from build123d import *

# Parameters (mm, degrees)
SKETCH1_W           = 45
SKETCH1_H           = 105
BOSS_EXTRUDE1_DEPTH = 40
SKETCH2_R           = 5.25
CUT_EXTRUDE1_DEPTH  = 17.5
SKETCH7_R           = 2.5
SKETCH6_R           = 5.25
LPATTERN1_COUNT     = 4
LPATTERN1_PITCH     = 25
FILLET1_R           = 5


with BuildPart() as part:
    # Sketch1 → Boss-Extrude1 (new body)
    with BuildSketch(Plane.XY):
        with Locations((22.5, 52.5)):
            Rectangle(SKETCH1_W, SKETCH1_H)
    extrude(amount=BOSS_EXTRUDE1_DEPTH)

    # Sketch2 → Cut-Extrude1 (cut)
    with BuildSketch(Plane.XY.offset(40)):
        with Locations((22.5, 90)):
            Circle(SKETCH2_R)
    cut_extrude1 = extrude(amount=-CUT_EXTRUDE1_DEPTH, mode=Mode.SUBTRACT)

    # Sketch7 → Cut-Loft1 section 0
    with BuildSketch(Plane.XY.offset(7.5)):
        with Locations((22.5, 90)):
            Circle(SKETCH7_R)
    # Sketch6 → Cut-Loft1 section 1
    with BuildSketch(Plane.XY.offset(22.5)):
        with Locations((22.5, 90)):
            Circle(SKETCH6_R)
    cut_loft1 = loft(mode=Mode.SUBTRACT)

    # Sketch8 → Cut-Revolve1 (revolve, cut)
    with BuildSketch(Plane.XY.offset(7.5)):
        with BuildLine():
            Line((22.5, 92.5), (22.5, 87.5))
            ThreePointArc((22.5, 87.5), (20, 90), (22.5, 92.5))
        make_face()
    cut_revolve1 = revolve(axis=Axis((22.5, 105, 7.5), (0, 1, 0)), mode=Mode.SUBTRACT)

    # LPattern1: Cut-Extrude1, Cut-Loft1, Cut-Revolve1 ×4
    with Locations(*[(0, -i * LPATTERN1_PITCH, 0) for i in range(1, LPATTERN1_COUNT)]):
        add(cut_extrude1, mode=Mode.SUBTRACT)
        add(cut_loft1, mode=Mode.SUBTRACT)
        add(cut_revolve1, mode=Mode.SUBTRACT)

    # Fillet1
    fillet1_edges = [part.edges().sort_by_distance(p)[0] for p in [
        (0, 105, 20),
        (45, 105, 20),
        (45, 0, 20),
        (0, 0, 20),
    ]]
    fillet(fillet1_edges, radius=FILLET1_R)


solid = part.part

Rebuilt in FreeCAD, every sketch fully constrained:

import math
import FreeCAD as App
import Part
import Sketcher

V = App.Vector
Q = App.Units.Quantity


def edges_at(feature, points):
    """Names of the edges that pass closest to the given points."""
    edges = feature.Shape.Edges
    near = lambda p: min(range(len(edges)), key=lambda i: edges[i].distToShape(Part.Vertex(*p))[0])
    return sorted({f"Edge{near(p) + 1}" for p in points})

doc = App.newDocument("Part")
body = doc.addObject("PartDesign::Body", "Body")

# Sketch on XY plane
sketch1 = body.newObject("Sketcher::SketchObject", "Sketch")
sketch1.AttachmentSupport = (doc.getObject("XY_Plane"), [""])
sketch1.MapMode = "FlatFace"
sketch1.addGeometry([
    Part.LineSegment(V(0, 105, 0), V(0, 0, 0)),
    Part.LineSegment(V(0, 0, 0), V(45, 0, 0)),
    Part.LineSegment(V(45, 0, 0), V(45, 105, 0)),
    Part.LineSegment(V(45, 105, 0), V(0, 105, 0)),
], False)
sketch1.addConstraint([
    Sketcher.Constraint("Coincident", 0, 2, 1, 1),
    Sketcher.Constraint("Coincident", 1, 2, 2, 1),
    Sketcher.Constraint("Coincident", 2, 2, 3, 1),
    Sketcher.Constraint("Coincident", 3, 2, 0, 1),
    Sketcher.Constraint("Vertical", 0),
    Sketcher.Constraint("Horizontal", 1),
    Sketcher.Constraint("Vertical", 2),
    Sketcher.Constraint("Horizontal", 3),
    Sketcher.Constraint("Coincident", 0, 2, -1, 1),
    Sketcher.Constraint("DistanceX", 1, 1, 1, 2, Q("45 mm")),
    Sketcher.Constraint("DistanceY", 0, 2, 0, 1, Q("105 mm")),
])
pad1 = body.newObject("PartDesign::Pad", "Pad")
pad1.Profile = sketch1
pad1.Length = 40

# Sketch on XY plane
sketch2 = body.newObject("Sketcher::SketchObject", "Sketch001")
sketch2.AttachmentSupport = (doc.getObject("XY_Plane"), [""])
sketch2.MapMode = "FlatFace"
sketch2.AttachmentOffset = App.Placement(V(0, 0, 40), App.Rotation())
sketch2.addGeometry(Part.Circle(V(22, 90, 0), V(0, 0, 1), 5), False)
sketch2.addConstraint([
    Sketcher.Constraint("Diameter", 0, Q("10.5 mm")),
    Sketcher.Constraint("DistanceY", -1, 1, 0, 3, Q("90 mm")),
    Sketcher.Constraint("DistanceX", -1, 1, 0, 3, Q("22.5 mm")),
])
pocket1 = body.newObject("PartDesign::Pocket", "Pocket")
pocket1.Profile = sketch2
pocket1.Length = 17.5

# Sketch on XY plane
sketch3 = body.newObject("Sketcher::SketchObject", "Sketch002")
sketch3.AttachmentSupport = (doc.getObject("XY_Plane"), [""])
sketch3.MapMode = "FlatFace"
sketch3.AttachmentOffset = App.Placement(V(0, 0, 7.5), App.Rotation())
sketch3.addGeometry(Part.Circle(V(22.5, 90, 0), V(0, 0, 1), 2.5), False)
sketch3.addConstraint([
    Sketcher.Constraint("Diameter", 0, Q("5 mm")),
    Sketcher.Constraint("DistanceY", -1, 1, 0, 3, Q("90 mm")),
    Sketcher.Constraint("DistanceX", -1, 1, 0, 3, Q("22.5 mm")),
])

# Sketch on XY plane
sketch4 = body.newObject("Sketcher::SketchObject", "Sketch003")
sketch4.AttachmentSupport = (doc.getObject("XY_Plane"), [""])
sketch4.MapMode = "FlatFace"
sketch4.AttachmentOffset = App.Placement(V(0, 0, 22.5), App.Rotation())
sketch4.addGeometry(Part.Circle(V(22, 90, 0), V(0, 0, 1), 5), False)
sketch4.addConstraint([
    Sketcher.Constraint("Diameter", 0, Q("10.5 mm")),
    Sketcher.Constraint("DistanceY", -1, 1, 0, 3, Q("90 mm")),
    Sketcher.Constraint("DistanceX", -1, 1, 0, 3, Q("22.5 mm")),
])

subtractiveloft = body.newObject("PartDesign::SubtractiveLoft", "SubtractiveLoft")
subtractiveloft.Profile = sketch3
subtractiveloft.Sections = [sketch4]

# Sketch on XY plane
sketch5 = body.newObject("Sketcher::SketchObject", "Sketch004")
sketch5.AttachmentSupport = (doc.getObject("XY_Plane"), [""])
sketch5.MapMode = "FlatFace"
sketch5.AttachmentOffset = App.Placement(V(0, 0, 7.5), App.Rotation())
sketch5.addGeometry([
    Part.LineSegment(V(22.5, 87.5, 0), V(22.5, 92.5, 0)),
    Part.ArcOfCircle(Part.Circle(V(22.5, 90, 0), V(0, 0, 1), 2.5), math.radians(90), math.radians(270)),
], False)
sketch5.addGeometry(Part.LineSegment(V(22.5, 87.5, 0), V(22.5, 92.5, 0)), True)  # axis
sketch5.addConstraint([
    Sketcher.Constraint("Coincident", 0, 1, 1, 2),
    Sketcher.Constraint("Coincident", 1, 1, 0, 2),
    Sketcher.Constraint("Vertical", 0),
    Sketcher.Constraint("Vertical", 2),
    Sketcher.Constraint("Coincident", 2, 1, 0, 1),
    Sketcher.Constraint("Vertical", 1, 3, 0, 1),
    Sketcher.Constraint("Equal", 0, 2),
    Sketcher.Constraint("Radius", 1, Q("2.5 mm")),
    Sketcher.Constraint("DistanceY", -1, 1, 1, 3, Q("90 mm")),
    Sketcher.Constraint("DistanceX", -1, 1, 1, 3, Q("22.5 mm")),
])
groove = body.newObject("PartDesign::Groove", "Groove")
groove.Profile = sketch5
groove.ReferenceAxis = (sketch5, ["Axis0"])
groove.Angle = 360
doc.recompute()

linearpattern = body.newObject("PartDesign::LinearPattern", "LinearPattern")
linearpattern.Originals = [pocket1, subtractiveloft, groove]
linearpattern.Direction = (doc.getObject("Y_Axis"), [""])
linearpattern.Mode = "offset"
linearpattern.Offset = 25
linearpattern.Occurrences = 4
linearpattern.Reversed = True
body.Tip = linearpattern
doc.recompute()

fillet = body.newObject("PartDesign::Fillet", "Fillet")
fillet.Base = (linearpattern, edges_at(linearpattern, [
    (0, 105, 20),
    (45, 105, 20),
    (45, 0, 20),
    (0, 0, 20),
]))
fillet.Radius = 5

doc.recompute()
